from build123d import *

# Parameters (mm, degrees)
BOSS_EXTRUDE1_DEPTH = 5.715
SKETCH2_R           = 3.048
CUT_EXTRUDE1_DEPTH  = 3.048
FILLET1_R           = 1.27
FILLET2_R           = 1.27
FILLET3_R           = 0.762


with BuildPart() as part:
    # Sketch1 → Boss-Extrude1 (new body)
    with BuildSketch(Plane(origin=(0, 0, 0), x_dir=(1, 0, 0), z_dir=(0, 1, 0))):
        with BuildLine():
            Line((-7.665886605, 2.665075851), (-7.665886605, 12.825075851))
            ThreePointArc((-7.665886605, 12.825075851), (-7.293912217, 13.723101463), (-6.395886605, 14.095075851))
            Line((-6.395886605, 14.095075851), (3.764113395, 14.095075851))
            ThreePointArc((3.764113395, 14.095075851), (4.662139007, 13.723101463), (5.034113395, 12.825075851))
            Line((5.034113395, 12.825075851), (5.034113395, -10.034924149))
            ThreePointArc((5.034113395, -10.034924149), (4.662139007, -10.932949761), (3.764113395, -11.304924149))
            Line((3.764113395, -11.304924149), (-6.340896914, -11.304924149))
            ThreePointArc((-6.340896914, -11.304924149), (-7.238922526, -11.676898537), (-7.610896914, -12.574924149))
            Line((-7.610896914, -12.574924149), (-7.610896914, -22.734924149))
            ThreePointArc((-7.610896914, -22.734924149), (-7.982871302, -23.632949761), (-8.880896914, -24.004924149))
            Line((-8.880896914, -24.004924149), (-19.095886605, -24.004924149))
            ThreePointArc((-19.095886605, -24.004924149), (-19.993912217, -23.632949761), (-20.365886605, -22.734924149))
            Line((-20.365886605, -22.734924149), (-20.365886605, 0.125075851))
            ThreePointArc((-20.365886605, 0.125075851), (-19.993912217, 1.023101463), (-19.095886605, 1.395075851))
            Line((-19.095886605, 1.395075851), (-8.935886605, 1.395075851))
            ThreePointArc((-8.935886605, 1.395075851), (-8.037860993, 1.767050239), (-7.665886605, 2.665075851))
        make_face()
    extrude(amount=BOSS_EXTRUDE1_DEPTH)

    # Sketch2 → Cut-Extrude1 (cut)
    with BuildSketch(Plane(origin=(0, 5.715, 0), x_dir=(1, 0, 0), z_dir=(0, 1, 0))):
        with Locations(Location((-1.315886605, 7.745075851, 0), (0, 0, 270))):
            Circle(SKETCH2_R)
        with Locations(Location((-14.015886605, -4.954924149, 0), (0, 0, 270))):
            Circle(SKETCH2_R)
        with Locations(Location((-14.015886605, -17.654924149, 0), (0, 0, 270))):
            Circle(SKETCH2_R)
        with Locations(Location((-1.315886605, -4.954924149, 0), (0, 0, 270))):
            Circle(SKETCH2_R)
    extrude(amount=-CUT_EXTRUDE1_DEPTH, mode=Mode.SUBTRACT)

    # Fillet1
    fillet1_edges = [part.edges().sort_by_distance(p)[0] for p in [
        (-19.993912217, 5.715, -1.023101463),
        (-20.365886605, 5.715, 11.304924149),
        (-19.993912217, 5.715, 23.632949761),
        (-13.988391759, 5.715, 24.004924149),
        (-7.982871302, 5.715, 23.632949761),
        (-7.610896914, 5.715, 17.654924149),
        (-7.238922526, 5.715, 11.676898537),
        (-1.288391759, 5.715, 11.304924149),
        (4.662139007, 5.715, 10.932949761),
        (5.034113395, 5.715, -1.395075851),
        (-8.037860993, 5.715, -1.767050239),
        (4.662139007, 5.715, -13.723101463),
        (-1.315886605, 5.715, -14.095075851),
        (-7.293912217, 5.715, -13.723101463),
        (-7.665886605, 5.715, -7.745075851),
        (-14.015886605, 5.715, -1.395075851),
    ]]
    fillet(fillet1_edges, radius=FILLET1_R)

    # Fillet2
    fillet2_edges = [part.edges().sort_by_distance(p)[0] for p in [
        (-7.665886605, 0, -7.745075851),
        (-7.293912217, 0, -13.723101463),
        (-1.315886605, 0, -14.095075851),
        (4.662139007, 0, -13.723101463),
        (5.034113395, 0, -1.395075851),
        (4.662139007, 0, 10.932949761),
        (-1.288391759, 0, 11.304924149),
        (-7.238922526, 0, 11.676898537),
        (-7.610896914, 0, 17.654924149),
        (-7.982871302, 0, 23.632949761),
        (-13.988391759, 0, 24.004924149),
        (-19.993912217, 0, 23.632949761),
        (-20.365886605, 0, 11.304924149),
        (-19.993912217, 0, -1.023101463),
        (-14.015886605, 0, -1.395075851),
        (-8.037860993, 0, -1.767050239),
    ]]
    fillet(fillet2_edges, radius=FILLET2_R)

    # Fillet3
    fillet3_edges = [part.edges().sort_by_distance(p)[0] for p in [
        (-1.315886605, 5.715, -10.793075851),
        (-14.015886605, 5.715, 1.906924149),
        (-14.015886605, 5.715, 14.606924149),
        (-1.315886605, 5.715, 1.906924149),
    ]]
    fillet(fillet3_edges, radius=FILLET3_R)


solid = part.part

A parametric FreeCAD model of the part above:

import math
import FreeCAD as App
import Part
import Sketcher
from FreeCAD import Vector
Q = App.Units.Quantity


def edges_at(feature, points):
    """Names of the edges that pass closest to the given points."""
    edges = feature.Shape.Edges
    near = lambda p: min(range(len(edges)), key=lambda i: edges[i].distToShape(Part.Vertex(*p))[0])
    return sorted({f"Edge{near(p) + 1}" for p in points})

doc = App.newDocument("Part")
body = doc.addObject("PartDesign::Body", "Body")

sketch1 = body.newObject("Sketcher::SketchObject", "Sketch")
sketch1.AttachmentSupport = (doc.getObject("XZ_Plane"), [""])
sketch1.MapMode = "FlatFace"
sketch1.addGeometry(Part.LineSegment(Vector(-7.7, -12.8, 0), Vector(-7.7, -2.7, 0)), False)
sketch1.addGeometry(Part.ArcOfCircle(Part.Circle(Vector(-8.9, -2.7, 0), Vector(0, 0, 1), 1.3), math.radians(0), math.radians(90)), False)
sketch1.addGeometry(Part.LineSegment(Vector(-8.9, -1.4, 0), Vector(-19.1, -1.4, 0)), False)
sketch1.addGeometry(Part.ArcOfCircle(Part.Circle(Vector(-19.1, -0.1, 0), Vector(0, 0, 1), 1.3), math.radians(180), math.radians(270)), False)
sketch1.addGeometry(Part.LineSegment(Vector(-20.4, -0.1, 0), Vector(-20.4, 22.7, 0)), False)
sketch1.addGeometry(Part.ArcOfCircle(Part.Circle(Vector(-19.1, 22.7, 0), Vector(0, 0, 1), 1.3), math.radians(90), math.radians(180)), False)
sketch1.addGeometry(Part.LineSegment(Vector(-19.1, 24, 0), Vector(-8.9, 24, 0)), False)
sketch1.addGeometry(Part.ArcOfCircle(Part.Circle(Vector(-8.9, 22.7, 0), Vector(0, 0, 1), 1.3), math.radians(0), math.radians(90)), False)
sketch1.addGeometry(Part.LineSegment(Vector(-7.6, 22.7, 0), Vector(-7.6, 12.6, 0)), False)
sketch1.addGeometry(Part.ArcOfCircle(Part.Circle(Vector(-6.3, 12.6, 0), Vector(0, 0, 1), 1.3), math.radians(180), math.radians(270)), False)
sketch1.addGeometry(Part.LineSegment(Vector(-6.3, 11.3, 0), Vector(3.8, 11.3, 0)), False)
sketch1.addGeometry(Part.ArcOfCircle(Part.Circle(Vector(3.8, 10, 0), Vector(0, 0, 1), 1.3), math.radians(0), math.radians(90)), False)
sketch1.addGeometry(Part.LineSegment(Vector(5, 10, 0), Vector(5, -12.8, 0)), False)
sketch1.addGeometry(Part.ArcOfCircle(Part.Circle(Vector(3.8, -12.8, 0), Vector(0, 0, 1), 1.3), math.radians(-90), math.radians(0)), False)
sketch1.addGeometry(Part.LineSegment(Vector(3.8, -14.1, 0), Vector(-6.4, -14.1, 0)), False)
sketch1.addGeometry(Part.ArcOfCircle(Part.Circle(Vector(-6.4, -12.8, 0), Vector(0, 0, 1), 1.3), math.radians(180), math.radians(270)), False)
sketch1.addConstraint(Sketcher.Constraint("Tangent", 0, 2, 1, 1))
sketch1.addConstraint(Sketcher.Constraint("Tangent", 1, 2, 2, 1))
sketch1.addConstraint(Sketcher.Constraint("Tangent", 2, 2, 3, 2))
sketch1.addConstraint(Sketcher.Constraint("Tangent", 3, 1, 4, 1))
sketch1.addConstraint(Sketcher.Constraint("Tangent", 4, 2, 5, 2))
sketch1.addConstraint(Sketcher.Constraint("Tangent", 5, 1, 6, 1))
sketch1.addConstraint(Sketcher.Constraint("Tangent", 6, 2, 7, 2))
sketch1.addConstraint(Sketcher.Constraint("Tangent", 7, 1, 8, 1))
sketch1.addConstraint(Sketcher.Constraint("Tangent", 8, 2, 9, 1))
sketch1.addConstraint(Sketcher.Constraint("Tangent", 9, 2, 10, 1))
sketch1.addConstraint(Sketcher.Constraint("Tangent", 10, 2, 11, 2))
sketch1.addConstraint(Sketcher.Constraint("Tangent", 11, 1, 12, 1))
sketch1.addConstraint(Sketcher.Constraint("Tangent", 12, 2, 13, 2))
sketch1.addConstraint(Sketcher.Constraint("Tangent", 13, 1, 14, 1))
sketch1.addConstraint(Sketcher.Constraint("Tangent", 14, 2, 15, 2))
sketch1.addConstraint(Sketcher.Constraint("Tangent", 15, 1, 0, 1))
sketch1.addConstraint(Sketcher.Constraint("Vertical", 0))
sketch1.addConstraint(Sketcher.Constraint("Horizontal", 2))
sketch1.addConstraint(Sketcher.Constraint("Vertical", 4))
sketch1.addConstraint(Sketcher.Constraint("Horizontal", 6))
sketch1.addConstraint(Sketcher.Constraint("Vertical", 8))
sketch1.addConstraint(Sketcher.Constraint("Horizontal", 10))
sketch1.addConstraint(Sketcher.Constraint("Vertical", 12))
sketch1.addConstraint(Sketcher.Constraint("Horizontal", 14))
sketch1.addConstraint(Sketcher.Constraint("Equal", 1, 3))
sketch1.addConstraint(Sketcher.Constraint("Equal", 3, 5))
sketch1.addConstraint(Sketcher.Constraint("Equal", 5, 7))
sketch1.addConstraint(Sketcher.Constraint("Equal", 7, 9))
sketch1.addConstraint(Sketcher.Constraint("Equal", 9, 11))
sketch1.addConstraint(Sketcher.Constraint("Equal", 11, 13))
sketch1.addConstraint(Sketcher.Constraint("Equal", 13, 15))
sketch1.addConstraint(Sketcher.Constraint("Equal", 2, 14))
sketch1.addConstraint(Sketcher.Constraint("Equal", 14, 0))
sketch1.addConstraint(Sketcher.Constraint("Equal", 0, 8))
sketch1.addConstraint(Sketcher.Constraint("Radius", 1, Q("0.05 in")))
sketch1.addConstraint(Sketcher.Constraint("DistanceX", 2, 2, 2, 1, Q("0.4 in")))
sketch1.addConstraint(Sketcher.Constraint("DistanceY", 4, 1, 4, 2, Q("0.9 in")))
sketch1.addConstraint(Sketcher.Constraint("DistanceX", 6, 1, 6, 2, Q("10.21499 mm")))
sketch1.addConstraint(Sketcher.Constraint("DistanceX", 1, 3, -1, 1, Q("8.935887 mm")))
sketch1.addConstraint(Sketcher.Constraint("DistanceY", 1, 3, -1, 1, Q("2.665076 mm")))
pad1 = body.newObject("PartDesign::Pad", "Pad")
pad1.Profile = sketch1
pad1.Length = Q("0.225 in")
pad1.Reversed = True

sketch2 = body.newObject("Sketcher::SketchObject", "Sketch001")
sketch2.AttachmentSupport = (doc.getObject("XZ_Plane"), [""])
sketch2.MapMode = "FlatFace"
sketch2.AttachmentOffset = App.Placement(Vector(0, 0, -0.225 * 25.4), App.Rotation())
sketch2.addGeometry(Part.Circle(Vector(-1.3, -7.7, 0), Vector(0, 0, 1), 3), False)
sketch2.addGeometry(Part.Circle(Vector(-14, 5, 0), Vector(0, 0, 1), 3), False)
sketch2.addGeometry(Part.Circle(Vector(-14, 17.7, 0), Vector(0, 0, 1), 3), False)
sketch2.addGeometry(Part.Circle(Vector(-1.3, 5, 0), Vector(0, 0, 1), 3), False)
sketch2.addConstraint(Sketcher.Constraint("Equal", 0, 1))
sketch2.addConstraint(Sketcher.Constraint("Equal", 1, 2))
sketch2.addConstraint(Sketcher.Constraint("Equal", 2, 3))
sketch2.addConstraint(Sketcher.Constraint("Horizontal", 1, 3, 3, 3))
sketch2.addConstraint(Sketcher.Constraint("Vertical", 1, 3, 2, 3))
sketch2.addConstraint(Sketcher.Constraint("Vertical", 0, 3, 3, 3))
sketch2.addConstraint(Sketcher.Constraint("Diameter", 0, Q("0.24 in")))
sketch2.addConstraint(Sketcher.Constraint("DistanceY", 0, 3, 2, 3, Q("1 in")))
sketch2.addConstraint(Sketcher.Constraint("DistanceX", 1, 3, 0, 3, Q("0.5 in")))
sketch2.addConstraint(Sketcher.Constraint("DistanceY", 0, 3, 1, 3, Q("0.5 in")))
sketch2.addConstraint(Sketcher.Constraint("DistanceX", 0, 3, -1, 1, Q("1.315887 mm")))
sketch2.addConstraint(Sketcher.Constraint("DistanceY", 0, 3, -1, 1, Q("7.745076 mm")))
pocket1 = body.newObject("PartDesign::Pocket", "Pocket")
pocket1.Profile = sketch2
pocket1.Length = Q("0.12 in")
pocket1.Reversed = True
doc.recompute()

fillet = body.newObject("PartDesign::Fillet", "Fillet")
fillet.Base = (pocket1, edges_at(pocket1, [
    (-19.994, 5.715, -1.023),
    (-20.366, 5.715, 11.305),
    (-19.994, 5.715, 23.633),
    (-13.988, 5.715, 24.005),
    (-7.983, 5.715, 23.633),
    (-7.611, 5.715, 17.655),
    (-7.239, 5.715, 11.677),
    (-1.288, 5.715, 11.305),
    (4.662, 5.715, 10.933),
    (5.034, 5.715, -1.395),
    (-8.038, 5.715, -1.767),
    (4.662, 5.715, -13.723),
    (-1.316, 5.715, -14.095),
    (-7.294, 5.715, -13.723),
    (-7.666, 5.715, -7.745),
    (-14.016, 5.715, -1.395),
]))
fillet.Radius = Q("0.05 in")
doc.recompute()

fillet2 = body.newObject("PartDesign::Fillet", "Fillet001")
fillet2.Base = (fillet, edges_at(fillet, [
    (-7.666, 0, -7.745),
    (-7.294, 0, -13.723),
    (-1.316, 0, -14.095),
    (4.662, 0, -13.723),
    (5.034, 0, -1.395),
    (4.662, 0, 10.933),
    (-1.288, 0, 11.305),
    (-7.239, 0, 11.677),
    (-7.611, 0, 17.655),
    (-7.983, 0, 23.633),
    (-13.988, 0, 24.005),
    (-19.994, 0, 23.633),
    (-20.366, 0, 11.305),
    (-19.994, 0, -1.023),
    (-14.016, 0, -1.395),
    (-8.038, 0, -1.767),
]))
fillet2.Radius = Q("0.05 in")
doc.recompute()

fillet3 = body.newObject("PartDesign::Fillet", "Fillet002")
fillet3.Base = (fillet2, edges_at(fillet2, [
    (-1.316, 5.715, -10.793),
    (-14.016, 5.715, 1.907),
    (-14.016, 5.715, 14.607),
    (-1.316, 5.715, 1.907),
]))
fillet3.Radius = Q("0.03 in")

doc.recompute()
